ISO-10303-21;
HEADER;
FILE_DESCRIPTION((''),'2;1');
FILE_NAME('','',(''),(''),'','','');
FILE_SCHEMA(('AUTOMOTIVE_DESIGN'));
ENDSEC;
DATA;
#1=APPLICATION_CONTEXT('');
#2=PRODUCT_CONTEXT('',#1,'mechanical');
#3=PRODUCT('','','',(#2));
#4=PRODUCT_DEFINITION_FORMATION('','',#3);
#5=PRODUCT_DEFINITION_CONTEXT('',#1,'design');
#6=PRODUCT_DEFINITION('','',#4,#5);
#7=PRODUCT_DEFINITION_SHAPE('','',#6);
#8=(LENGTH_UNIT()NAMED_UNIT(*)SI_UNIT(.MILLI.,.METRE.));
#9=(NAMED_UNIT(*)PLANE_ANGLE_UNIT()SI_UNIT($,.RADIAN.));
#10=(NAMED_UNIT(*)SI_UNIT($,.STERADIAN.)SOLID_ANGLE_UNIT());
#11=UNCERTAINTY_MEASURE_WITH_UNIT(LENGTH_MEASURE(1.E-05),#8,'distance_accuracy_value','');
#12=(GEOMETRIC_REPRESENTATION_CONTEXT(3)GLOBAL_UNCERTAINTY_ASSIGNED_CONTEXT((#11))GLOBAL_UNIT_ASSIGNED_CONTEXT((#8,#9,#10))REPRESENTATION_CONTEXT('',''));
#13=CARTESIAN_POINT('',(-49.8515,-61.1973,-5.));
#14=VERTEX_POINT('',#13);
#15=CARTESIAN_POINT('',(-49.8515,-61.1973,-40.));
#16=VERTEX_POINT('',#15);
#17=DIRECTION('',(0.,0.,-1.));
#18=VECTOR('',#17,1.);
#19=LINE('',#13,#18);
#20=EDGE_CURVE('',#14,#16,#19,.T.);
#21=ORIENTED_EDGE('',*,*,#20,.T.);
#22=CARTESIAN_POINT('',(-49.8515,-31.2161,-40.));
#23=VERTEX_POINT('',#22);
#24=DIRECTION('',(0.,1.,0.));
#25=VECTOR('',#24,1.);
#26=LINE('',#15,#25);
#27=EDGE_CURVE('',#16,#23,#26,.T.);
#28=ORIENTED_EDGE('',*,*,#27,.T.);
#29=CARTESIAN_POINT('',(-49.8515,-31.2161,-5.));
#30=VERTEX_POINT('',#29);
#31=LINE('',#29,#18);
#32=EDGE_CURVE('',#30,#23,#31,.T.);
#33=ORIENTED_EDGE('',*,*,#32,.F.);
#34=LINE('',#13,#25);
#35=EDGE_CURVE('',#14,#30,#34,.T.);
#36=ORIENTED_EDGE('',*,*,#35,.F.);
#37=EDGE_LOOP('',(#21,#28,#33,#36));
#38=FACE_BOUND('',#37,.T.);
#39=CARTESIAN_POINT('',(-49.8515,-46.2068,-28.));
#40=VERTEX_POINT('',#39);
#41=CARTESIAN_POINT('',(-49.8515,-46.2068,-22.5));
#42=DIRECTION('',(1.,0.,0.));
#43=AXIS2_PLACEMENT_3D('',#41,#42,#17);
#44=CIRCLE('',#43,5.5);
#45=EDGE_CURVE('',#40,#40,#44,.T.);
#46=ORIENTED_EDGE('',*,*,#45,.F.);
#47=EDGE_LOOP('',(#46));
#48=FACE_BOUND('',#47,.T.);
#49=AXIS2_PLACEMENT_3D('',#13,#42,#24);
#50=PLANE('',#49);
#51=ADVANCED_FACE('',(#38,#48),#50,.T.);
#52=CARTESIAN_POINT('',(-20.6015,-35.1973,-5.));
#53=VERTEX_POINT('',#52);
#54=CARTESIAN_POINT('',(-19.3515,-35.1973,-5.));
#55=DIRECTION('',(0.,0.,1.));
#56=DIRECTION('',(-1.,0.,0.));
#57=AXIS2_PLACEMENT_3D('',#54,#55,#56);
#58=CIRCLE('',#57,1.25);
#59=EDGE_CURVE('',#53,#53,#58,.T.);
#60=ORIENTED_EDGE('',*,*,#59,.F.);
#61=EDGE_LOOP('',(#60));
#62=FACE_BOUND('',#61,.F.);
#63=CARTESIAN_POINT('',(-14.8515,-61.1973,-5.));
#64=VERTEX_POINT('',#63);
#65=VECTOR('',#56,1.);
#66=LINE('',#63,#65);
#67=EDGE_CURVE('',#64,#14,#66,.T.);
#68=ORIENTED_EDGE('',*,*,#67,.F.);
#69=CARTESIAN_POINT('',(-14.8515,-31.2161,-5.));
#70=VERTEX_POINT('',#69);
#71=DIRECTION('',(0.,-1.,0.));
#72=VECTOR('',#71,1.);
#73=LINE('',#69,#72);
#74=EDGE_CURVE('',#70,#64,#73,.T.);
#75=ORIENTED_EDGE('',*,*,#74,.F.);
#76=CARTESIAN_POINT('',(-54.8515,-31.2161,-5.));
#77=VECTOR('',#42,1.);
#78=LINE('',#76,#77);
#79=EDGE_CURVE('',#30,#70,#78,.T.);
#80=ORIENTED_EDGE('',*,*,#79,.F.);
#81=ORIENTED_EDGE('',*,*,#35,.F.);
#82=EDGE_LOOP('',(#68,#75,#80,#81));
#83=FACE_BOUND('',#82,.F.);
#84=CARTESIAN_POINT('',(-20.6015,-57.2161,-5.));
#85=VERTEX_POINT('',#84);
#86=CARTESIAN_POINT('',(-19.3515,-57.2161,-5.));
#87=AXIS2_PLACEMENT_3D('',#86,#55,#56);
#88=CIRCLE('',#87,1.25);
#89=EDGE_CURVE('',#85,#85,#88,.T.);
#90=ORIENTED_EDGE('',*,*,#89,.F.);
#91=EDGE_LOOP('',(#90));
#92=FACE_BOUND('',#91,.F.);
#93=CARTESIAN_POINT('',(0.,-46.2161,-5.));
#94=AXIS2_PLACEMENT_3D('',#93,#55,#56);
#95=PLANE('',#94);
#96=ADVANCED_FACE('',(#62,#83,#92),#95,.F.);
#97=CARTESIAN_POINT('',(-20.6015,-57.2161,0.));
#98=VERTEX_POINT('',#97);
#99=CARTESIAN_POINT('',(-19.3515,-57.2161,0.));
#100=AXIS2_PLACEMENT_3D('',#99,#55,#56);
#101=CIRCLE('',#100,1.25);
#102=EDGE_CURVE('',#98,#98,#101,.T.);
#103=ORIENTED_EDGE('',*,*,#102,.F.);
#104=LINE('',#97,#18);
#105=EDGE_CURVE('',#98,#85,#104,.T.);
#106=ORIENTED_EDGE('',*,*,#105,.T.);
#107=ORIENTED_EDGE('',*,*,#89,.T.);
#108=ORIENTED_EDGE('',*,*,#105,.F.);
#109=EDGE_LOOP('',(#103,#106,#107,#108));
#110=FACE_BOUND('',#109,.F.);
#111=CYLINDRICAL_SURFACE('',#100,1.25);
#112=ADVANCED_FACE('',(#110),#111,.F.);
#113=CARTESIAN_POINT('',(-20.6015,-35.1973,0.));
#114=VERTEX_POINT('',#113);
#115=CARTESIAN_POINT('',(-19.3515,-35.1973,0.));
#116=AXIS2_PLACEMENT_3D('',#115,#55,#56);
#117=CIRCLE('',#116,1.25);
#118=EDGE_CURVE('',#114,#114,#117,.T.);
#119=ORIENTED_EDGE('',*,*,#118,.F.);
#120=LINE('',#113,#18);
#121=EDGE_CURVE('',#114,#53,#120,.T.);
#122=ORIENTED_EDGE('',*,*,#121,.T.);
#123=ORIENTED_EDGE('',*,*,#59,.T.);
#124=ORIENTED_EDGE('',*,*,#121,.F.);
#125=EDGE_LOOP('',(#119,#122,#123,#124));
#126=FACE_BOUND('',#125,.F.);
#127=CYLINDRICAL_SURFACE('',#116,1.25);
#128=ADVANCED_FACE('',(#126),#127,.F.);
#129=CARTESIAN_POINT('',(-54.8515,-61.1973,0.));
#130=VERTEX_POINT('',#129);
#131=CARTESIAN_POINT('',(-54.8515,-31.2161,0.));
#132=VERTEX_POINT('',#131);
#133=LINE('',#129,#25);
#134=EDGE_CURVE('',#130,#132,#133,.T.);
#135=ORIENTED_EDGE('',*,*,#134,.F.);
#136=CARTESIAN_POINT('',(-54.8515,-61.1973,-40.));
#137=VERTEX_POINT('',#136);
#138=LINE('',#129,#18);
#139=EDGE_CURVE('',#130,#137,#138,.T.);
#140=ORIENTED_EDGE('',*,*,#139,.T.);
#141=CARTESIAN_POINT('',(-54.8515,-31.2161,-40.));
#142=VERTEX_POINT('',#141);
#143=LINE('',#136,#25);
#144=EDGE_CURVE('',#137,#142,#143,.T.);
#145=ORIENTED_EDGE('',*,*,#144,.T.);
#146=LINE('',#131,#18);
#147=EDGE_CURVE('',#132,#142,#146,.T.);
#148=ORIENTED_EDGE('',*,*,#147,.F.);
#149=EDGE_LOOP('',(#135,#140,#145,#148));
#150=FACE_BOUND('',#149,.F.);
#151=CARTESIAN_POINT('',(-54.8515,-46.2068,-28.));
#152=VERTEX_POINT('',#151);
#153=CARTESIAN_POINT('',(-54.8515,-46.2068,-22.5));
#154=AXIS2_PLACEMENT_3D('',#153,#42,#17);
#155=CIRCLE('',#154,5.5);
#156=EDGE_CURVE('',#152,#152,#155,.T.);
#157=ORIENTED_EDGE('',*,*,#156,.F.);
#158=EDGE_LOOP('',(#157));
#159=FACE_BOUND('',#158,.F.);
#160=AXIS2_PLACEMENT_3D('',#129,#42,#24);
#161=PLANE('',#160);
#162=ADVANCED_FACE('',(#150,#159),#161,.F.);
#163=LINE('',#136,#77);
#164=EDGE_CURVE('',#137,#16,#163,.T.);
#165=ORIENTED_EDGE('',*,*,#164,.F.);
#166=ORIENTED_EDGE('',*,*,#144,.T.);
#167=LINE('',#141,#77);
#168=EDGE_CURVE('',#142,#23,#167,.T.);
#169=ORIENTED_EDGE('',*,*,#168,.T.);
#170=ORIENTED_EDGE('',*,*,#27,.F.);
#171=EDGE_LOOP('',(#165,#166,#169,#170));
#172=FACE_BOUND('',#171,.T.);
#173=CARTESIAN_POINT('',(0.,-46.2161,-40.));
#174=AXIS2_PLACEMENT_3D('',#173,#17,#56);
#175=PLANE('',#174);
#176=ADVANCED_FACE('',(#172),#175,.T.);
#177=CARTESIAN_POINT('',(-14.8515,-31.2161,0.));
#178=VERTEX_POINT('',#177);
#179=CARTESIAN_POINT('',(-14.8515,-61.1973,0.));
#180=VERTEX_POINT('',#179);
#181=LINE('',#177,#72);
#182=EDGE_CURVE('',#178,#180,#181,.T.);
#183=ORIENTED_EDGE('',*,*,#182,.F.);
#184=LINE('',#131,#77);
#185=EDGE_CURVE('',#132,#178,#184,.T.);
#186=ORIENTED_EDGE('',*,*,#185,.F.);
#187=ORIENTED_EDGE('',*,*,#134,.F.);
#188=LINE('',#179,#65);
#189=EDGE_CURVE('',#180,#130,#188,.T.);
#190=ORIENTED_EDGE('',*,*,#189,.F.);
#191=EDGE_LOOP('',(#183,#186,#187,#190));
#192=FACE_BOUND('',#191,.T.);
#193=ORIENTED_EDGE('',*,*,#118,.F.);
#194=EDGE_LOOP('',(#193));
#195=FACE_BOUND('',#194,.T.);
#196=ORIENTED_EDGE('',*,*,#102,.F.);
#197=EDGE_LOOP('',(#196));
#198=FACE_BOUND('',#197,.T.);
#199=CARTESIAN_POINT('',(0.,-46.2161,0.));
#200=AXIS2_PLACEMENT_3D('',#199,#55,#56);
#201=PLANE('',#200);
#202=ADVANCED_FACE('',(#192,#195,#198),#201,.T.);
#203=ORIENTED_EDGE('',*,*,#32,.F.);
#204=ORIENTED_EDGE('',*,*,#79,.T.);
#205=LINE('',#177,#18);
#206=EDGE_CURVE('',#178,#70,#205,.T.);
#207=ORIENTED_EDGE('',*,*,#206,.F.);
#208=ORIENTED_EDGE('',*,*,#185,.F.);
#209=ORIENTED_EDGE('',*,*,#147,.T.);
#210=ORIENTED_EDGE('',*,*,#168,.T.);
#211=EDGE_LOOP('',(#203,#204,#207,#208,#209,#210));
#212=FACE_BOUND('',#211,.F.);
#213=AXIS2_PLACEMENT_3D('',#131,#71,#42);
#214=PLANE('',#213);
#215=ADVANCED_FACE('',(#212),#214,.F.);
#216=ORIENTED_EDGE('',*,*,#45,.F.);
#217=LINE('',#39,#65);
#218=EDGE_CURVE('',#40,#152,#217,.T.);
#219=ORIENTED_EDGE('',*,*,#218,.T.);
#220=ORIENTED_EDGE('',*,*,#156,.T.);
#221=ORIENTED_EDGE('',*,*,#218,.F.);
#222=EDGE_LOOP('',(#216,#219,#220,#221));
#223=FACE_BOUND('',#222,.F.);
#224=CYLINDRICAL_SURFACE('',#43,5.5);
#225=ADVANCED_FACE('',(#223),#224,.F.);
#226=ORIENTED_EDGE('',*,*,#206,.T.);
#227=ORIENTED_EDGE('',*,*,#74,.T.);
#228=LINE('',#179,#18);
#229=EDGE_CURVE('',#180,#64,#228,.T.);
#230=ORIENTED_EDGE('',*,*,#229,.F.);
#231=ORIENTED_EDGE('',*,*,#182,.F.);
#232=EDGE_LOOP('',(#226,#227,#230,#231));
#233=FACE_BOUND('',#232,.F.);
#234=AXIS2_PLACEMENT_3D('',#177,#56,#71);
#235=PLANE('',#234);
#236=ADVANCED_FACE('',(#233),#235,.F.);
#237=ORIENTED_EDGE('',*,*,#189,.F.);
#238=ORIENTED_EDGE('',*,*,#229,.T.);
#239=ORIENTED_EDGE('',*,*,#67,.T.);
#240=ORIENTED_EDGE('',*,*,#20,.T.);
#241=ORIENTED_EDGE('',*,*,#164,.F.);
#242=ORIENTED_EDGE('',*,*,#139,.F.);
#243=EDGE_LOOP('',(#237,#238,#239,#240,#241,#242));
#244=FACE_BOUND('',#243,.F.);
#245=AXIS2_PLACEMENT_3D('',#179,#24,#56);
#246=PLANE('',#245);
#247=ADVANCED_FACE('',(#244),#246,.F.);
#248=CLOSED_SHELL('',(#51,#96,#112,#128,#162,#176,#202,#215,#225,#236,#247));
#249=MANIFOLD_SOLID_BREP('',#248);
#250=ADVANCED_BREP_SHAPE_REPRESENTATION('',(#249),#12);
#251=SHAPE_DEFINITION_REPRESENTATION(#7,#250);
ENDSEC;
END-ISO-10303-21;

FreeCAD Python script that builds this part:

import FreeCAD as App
import Part
import Sketcher
from FreeCAD import Vector
Q = App.Units.Quantity

doc = App.newDocument("Part")
body = doc.addObject("PartDesign::Body", "Body")

# Sketch on XY plane
sketch1 = doc.addObject("Sketcher::SketchObject", "Sketch")
body.addObject(sketch1)
sketch1.AttachmentSupport = (doc.XY_Plane, [""])
sketch1.MapMode = "FlatFace"
sketch1.addGeometry(Part.LineSegment(Vector(-54.8515, -61.1973, 0), Vector(-14.8515, -61.1973, 0)), False)
sketch1.addGeometry(Part.LineSegment(Vector(-14.8515, -61.1973, 0), Vector(-14.8515, -31.2161, 0)), False)
sketch1.addGeometry(Part.LineSegment(Vector(-14.8515, -31.2161, 0), Vector(-54.8515, -31.2161, 0)), False)
sketch1.addGeometry(Part.LineSegment(Vector(-54.8515, -31.2161, 0), Vector(-54.8515, -61.1973, 0)), False)
sketch1.addGeometry(Part.Circle(Vector(-19.3515, -35.1973, 0), Vector(0, 0, 1), 1.25), False)
sketch1.addGeometry(Part.Circle(Vector(-19.3515, -57.2161, 0), Vector(0, 0, 1), 1.25), False)
sketch1.addConstraint(Sketcher.Constraint("Coincident", 0, 2, 1, 1))
sketch1.addConstraint(Sketcher.Constraint("Coincident", 1, 2, 2, 1))
sketch1.addConstraint(Sketcher.Constraint("Coincident", 2, 2, 3, 1))
sketch1.addConstraint(Sketcher.Constraint("Coincident", 3, 2, 0, 1))
sketch1.addConstraint(Sketcher.Constraint("Horizontal", 0))
sketch1.addConstraint(Sketcher.Constraint("Vertical", 1))
sketch1.addConstraint(Sketcher.Constraint("Horizontal", 2))
sketch1.addConstraint(Sketcher.Constraint("Vertical", 3))
sketch1.addConstraint(Sketcher.Constraint("Equal", 4, 5))
sketch1.addConstraint(Sketcher.Constraint("Vertical", 4, 3, 5, 3))
sketch1.addConstraint(Sketcher.Constraint("Diameter", 4, Q("2.5 mm")))
sketch1.addConstraint(Sketcher.Constraint("DistanceX", 0, 1, 0, 2, Q("40 mm")))
sketch1.addConstraint(Sketcher.Constraint("DistanceY", 0, 2, 4, 3, Q("26 mm")))
sketch1.addConstraint(Sketcher.Constraint("DistanceY", 5, 3, 1, 2, Q("26 mm")))
sketch1.addConstraint(Sketcher.Constraint("DistanceX", 5, 3, 0, 2, Q("4.5 mm")))
sketch1.addConstraint(Sketcher.Constraint("DistanceY", 1, 1, 1, 2, Q("29.9812 mm")))
sketch1.addConstraint(Sketcher.Constraint("DistanceY", 5, 3, -1, 1, Q("57.216 mm")))
sketch1.addConstraint(Sketcher.Constraint("DistanceX", 4, 3, -1, 1, Q("19.3515 mm")))
pad1 = doc.addObject("PartDesign::Pad", "Pad")
body.addObject(pad1)
pad1.Profile = sketch1
pad1.Length = 5
pad1.Reversed = True

# Sketch on XY plane
sketch2 = doc.addObject("Sketcher::SketchObject", "Sketch001")
body.addObject(sketch2)
sketch2.AttachmentSupport = (doc.XY_Plane, [""])
sketch2.MapMode = "FlatFace"
sketch2.AttachmentOffset = App.Placement(Vector(0, 0, -5), App.Rotation())
sketch2.addGeometry(Part.LineSegment(Vector(-49.8515, -61.1973, 0), Vector(-54.8515, -61.1973, 0)), False)
sketch2.addGeometry(Part.LineSegment(Vector(-54.8515, -61.1973, 0), Vector(-54.8515, -31.2161, 0)), False)
sketch2.addGeometry(Part.LineSegment(Vector(-54.8515, -31.2161, 0), Vector(-49.8515, -31.2161, 0)), False)
sketch2.addGeometry(Part.LineSegment(Vector(-49.8515, -31.2161, 0), Vector(-49.8515, -61.1973, 0)), False)
sketch2.addConstraint(Sketcher.Constraint("Coincident", 0, 2, 1, 1))
sketch2.addConstraint(Sketcher.Constraint("Coincident", 1, 2, 2, 1))
sketch2.addConstraint(Sketcher.Constraint("Coincident", 2, 2, 3, 1))
sketch2.addConstraint(Sketcher.Constraint("Coincident", 3, 2, 0, 1))
sketch2.addConstraint(Sketcher.Constraint("Horizontal", 0))
sketch2.addConstraint(Sketcher.Constraint("Vertical", 1))
sketch2.addConstraint(Sketcher.Constraint("Horizontal", 2))
sketch2.addConstraint(Sketcher.Constraint("Vertical", 3))
sketch2.addConstraint(Sketcher.Constraint("DistanceX", 0, 2, 0, 1, Q("5 mm")))
sketch2.addConstraint(Sketcher.Constraint("DistanceY", 1, 1, 1, 2, Q("29.9812 mm")))
sketch2.addConstraint(Sketcher.Constraint("DistanceY", 1, 2, -1, 1, Q("31.216 mm")))
sketch2.addConstraint(Sketcher.Constraint("DistanceX", 0, 2, -1, 1, Q("54.8515 mm")))
pad2 = doc.addObject("PartDesign::Pad", "Pad001")
body.addObject(pad2)
pad2.Profile = sketch2
pad2.Length = 35
pad2.Reversed = True

# Sketch on YZ plane
sketch3 = doc.addObject("Sketcher::SketchObject", "Sketch002")
body.addObject(sketch3)
sketch3.AttachmentSupport = (doc.YZ_Plane, [""])
sketch3.MapMode = "FlatFace"
sketch3.AttachmentOffset = App.Placement(Vector(0, 0, -49.8515), App.Rotation())
sketch3.addGeometry(Part.Circle(Vector(-46.2068, -22.5, 0), Vector(0, 0, 1), 5.5), False)
sketch3.addConstraint(Sketcher.Constraint("Diameter", 0, Q("11 mm")))
sketch3.addConstraint(Sketcher.Constraint("DistanceY", 0, 3, -1, 1, Q("22.5 mm")))
sketch3.addConstraint(Sketcher.Constraint("DistanceX", 0, 3, -1, 1, Q("46.2068 mm")))
pocket1 = doc.addObject("PartDesign::Pocket", "Pocket")
body.addObject(pocket1)
pocket1.Profile = sketch3
pocket1.Length = 35

doc.recompute()
